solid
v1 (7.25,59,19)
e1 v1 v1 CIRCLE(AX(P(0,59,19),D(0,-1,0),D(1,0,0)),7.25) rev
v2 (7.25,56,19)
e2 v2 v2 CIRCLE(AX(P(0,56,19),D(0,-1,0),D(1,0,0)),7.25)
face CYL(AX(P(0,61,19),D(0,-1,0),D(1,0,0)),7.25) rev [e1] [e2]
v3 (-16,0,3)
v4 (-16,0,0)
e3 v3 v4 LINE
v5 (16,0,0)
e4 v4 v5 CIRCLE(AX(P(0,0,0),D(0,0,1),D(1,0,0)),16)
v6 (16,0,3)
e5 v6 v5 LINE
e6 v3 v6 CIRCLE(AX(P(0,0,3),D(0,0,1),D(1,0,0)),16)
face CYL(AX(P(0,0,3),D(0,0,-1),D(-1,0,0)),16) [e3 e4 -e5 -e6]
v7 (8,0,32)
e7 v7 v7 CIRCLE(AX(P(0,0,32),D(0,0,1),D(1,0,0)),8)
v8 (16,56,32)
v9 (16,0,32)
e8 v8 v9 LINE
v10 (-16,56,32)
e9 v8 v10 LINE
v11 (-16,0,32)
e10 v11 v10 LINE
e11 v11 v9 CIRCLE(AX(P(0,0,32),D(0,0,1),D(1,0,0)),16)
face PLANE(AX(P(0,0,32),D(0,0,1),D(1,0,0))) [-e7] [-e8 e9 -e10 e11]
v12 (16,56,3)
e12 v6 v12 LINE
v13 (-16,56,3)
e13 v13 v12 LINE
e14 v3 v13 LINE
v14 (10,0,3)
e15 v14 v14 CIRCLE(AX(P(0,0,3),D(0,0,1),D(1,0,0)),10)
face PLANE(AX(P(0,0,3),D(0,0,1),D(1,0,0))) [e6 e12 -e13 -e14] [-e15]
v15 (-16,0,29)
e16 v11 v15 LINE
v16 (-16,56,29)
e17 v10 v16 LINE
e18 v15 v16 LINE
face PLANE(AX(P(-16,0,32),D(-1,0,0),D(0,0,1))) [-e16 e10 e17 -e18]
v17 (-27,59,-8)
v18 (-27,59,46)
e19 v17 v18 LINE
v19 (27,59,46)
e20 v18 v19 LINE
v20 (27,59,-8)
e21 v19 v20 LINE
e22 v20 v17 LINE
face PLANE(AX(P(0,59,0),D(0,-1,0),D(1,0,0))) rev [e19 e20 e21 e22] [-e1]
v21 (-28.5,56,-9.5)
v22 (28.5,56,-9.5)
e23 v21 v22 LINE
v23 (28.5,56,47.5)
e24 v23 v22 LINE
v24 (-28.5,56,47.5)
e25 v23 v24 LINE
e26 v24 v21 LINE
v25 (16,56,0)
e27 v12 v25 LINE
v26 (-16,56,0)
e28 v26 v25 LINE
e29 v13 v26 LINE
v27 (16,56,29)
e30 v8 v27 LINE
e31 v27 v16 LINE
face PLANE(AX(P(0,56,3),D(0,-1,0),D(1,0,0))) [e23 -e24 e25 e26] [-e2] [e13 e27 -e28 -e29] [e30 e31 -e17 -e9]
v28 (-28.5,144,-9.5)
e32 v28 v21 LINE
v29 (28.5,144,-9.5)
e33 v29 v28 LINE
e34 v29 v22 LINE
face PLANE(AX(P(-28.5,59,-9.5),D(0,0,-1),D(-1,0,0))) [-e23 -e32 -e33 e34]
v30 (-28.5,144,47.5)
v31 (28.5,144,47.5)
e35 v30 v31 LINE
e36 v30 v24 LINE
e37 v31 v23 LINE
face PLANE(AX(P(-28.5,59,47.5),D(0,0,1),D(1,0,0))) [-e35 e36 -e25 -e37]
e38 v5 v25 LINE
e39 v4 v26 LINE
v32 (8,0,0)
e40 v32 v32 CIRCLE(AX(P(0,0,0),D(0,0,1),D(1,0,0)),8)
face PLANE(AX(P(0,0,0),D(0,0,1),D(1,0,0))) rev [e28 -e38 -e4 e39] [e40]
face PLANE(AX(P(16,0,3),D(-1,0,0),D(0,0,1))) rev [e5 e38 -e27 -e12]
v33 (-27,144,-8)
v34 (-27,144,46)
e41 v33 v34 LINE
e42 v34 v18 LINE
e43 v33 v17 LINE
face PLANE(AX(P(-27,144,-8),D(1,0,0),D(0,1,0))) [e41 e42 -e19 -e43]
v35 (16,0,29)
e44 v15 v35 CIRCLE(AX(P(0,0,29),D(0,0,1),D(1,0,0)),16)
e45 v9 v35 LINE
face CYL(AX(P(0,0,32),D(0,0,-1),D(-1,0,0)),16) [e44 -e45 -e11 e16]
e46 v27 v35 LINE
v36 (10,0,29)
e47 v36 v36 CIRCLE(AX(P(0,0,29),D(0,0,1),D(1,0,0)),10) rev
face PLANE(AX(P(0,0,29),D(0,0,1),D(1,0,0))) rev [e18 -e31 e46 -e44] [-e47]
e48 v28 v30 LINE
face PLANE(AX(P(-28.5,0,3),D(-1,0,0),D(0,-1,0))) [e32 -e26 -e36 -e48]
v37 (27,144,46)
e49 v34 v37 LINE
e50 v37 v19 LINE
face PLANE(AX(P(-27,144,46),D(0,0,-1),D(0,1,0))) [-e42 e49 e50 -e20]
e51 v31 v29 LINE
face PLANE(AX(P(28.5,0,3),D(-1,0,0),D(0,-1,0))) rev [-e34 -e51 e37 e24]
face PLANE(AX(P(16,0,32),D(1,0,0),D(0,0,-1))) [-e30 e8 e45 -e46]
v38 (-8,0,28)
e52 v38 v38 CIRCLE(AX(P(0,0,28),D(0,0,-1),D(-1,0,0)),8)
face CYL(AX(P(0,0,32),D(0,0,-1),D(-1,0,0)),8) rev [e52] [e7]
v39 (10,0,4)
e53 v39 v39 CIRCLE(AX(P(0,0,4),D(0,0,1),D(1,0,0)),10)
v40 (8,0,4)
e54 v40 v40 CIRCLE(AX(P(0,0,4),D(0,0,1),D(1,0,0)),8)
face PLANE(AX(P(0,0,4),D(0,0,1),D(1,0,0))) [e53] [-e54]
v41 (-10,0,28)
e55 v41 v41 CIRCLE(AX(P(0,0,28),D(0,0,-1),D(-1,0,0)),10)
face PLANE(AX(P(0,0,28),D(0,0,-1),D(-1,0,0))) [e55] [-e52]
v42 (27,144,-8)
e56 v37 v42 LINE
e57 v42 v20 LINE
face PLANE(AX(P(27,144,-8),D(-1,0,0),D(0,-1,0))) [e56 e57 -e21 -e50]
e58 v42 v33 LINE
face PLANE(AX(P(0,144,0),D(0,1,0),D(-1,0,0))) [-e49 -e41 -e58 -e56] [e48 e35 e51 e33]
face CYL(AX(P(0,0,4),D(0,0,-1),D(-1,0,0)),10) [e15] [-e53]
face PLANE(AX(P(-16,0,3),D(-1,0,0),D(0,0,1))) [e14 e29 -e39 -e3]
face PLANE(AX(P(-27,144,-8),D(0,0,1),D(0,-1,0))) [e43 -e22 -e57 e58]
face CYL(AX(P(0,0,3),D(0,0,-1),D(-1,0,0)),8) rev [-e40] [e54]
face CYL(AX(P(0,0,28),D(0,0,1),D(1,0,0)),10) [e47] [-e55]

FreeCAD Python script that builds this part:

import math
import FreeCAD as App
import Part
import Sketcher

V = App.Vector
Q = App.Units.Quantity


def add_polygon(sketch, points):
    """Adds a closed chain of lines whose ends are joined by coincident constraints."""
    first, n = sketch.GeometryCount, len(points)
    for a, b in zip(points, points[1:] + points[:1]):
        sketch.addGeometry(Part.LineSegment(App.Vector(*a, 0), App.Vector(*b, 0)), False)
    for i in range(n):
        sketch.addConstraint(Sketcher.Constraint("Coincident", first + i, 2, first + (i + 1) % n, 1))

doc = App.newDocument("Part")
body = doc.addObject("PartDesign::Body", "Body")

# Sketch on XY plane
sketch1 = body.newObject("Sketcher::SketchObject", "Sketch")
sketch1.AttachmentSupport = (doc.getObject("XY_Plane"), [""])
sketch1.MapMode = "FlatFace"
sketch1.addGeometry(Part.LineSegment(V(-16, 56, 0), V(-16, 0, 0)), False)
sketch1.addGeometry(Part.ArcOfCircle(Part.Circle(V(0, 0, 0), V(0, 0, 1), 16), math.radians(180), math.radians(360)), False)
sketch1.addGeometry(Part.LineSegment(V(16, 0, 0), V(16, 56, 0)), False)
sketch1.addGeometry(Part.LineSegment(V(16, 56, 0), V(28.5, 56, 0)), False)
sketch1.addGeometry(Part.LineSegment(V(28.5, 56, 0), V(28.5, 96, 0)), False)
sketch1.addGeometry(Part.LineSegment(V(28.5, 96, 0), V(-28.5, 96, 0)), False)
sketch1.addGeometry(Part.LineSegment(V(-28.5, 96, 0), V(-28.5, 56, 0)), False)
sketch1.addGeometry(Part.LineSegment(V(-28.5, 56, 0), V(-16, 56, 0)), False)
sketch1.addGeometry(Part.Circle(V(0, 0, 0), V(0, 0, 1), 8), False)
sketch1.addConstraint(Sketcher.Constraint("Tangent", 0, 2, 1, 1))
sketch1.addConstraint(Sketcher.Constraint("Tangent", 1, 2, 2, 1))
sketch1.addConstraint(Sketcher.Constraint("Coincident", 2, 2, 3, 1))
sketch1.addConstraint(Sketcher.Constraint("Coincident", 3, 2, 4, 1))
sketch1.addConstraint(Sketcher.Constraint("Coincident", 4, 2, 5, 1))
sketch1.addConstraint(Sketcher.Constraint("Coincident", 5, 2, 6, 1))
sketch1.addConstraint(Sketcher.Constraint("Coincident", 6, 2, 7, 1))
sketch1.addConstraint(Sketcher.Constraint("Coincident", 7, 2, 0, 1))
sketch1.addConstraint(Sketcher.Constraint("Vertical", 0))
sketch1.addConstraint(Sketcher.Constraint("Vertical", 2))
sketch1.addConstraint(Sketcher.Constraint("Horizontal", 3))
sketch1.addConstraint(Sketcher.Constraint("Vertical", 4))
sketch1.addConstraint(Sketcher.Constraint("Horizontal", 5))
sketch1.addConstraint(Sketcher.Constraint("Vertical", 6))
sketch1.addConstraint(Sketcher.Constraint("Horizontal", 7))
sketch1.addConstraint(Sketcher.Constraint("Coincident", 1, 3, -1, 1))
sketch1.addConstraint(Sketcher.Constraint("Coincident", 8, 3, -1, 1))
sketch1.addConstraint(Sketcher.Constraint("Symmetric", 3, 2, 6, 2, -2))
sketch1.addConstraint(Sketcher.Constraint("Diameter", 8, Q("16 mm")))
sketch1.addConstraint(Sketcher.Constraint("Radius", 1, Q("16 mm")))
sketch1.addConstraint(Sketcher.Constraint("DistanceX", 5, 2, 5, 1, Q("57 mm")))
sketch1.addConstraint(Sketcher.Constraint("DistanceY", 0, 2, 0, 1, Q("56 mm")))
sketch1.addConstraint(Sketcher.Constraint("DistanceY", 4, 1, 4, 2, Q("40 mm")))
pad1 = body.newObject("PartDesign::Pad", "Pad")
pad1.Profile = sketch1
pad1.Length = 3

# Sketch on XY plane
sketch2 = body.newObject("Sketcher::SketchObject", "Sketch001")
sketch2.AttachmentSupport = (doc.getObject("XY_Plane"), [""])
sketch2.MapMode = "FlatFace"
sketch2.AttachmentOffset = App.Placement(V(0, 0, 3), App.Rotation())
sketch2.addGeometry(Part.Circle(V(0, 0, 0), V(0, 0, 1), 10), False)
sketch2.addGeometry(Part.Circle(V(0, 0, 0), V(0, 0, 1), 8), False)
sketch2.addConstraint(Sketcher.Constraint("Coincident", 0, 3, -1, 1))
sketch2.addConstraint(Sketcher.Constraint("Coincident", 1, 3, -1, 1))
sketch2.addConstraint(Sketcher.Constraint("Diameter", 0, Q("20 mm")))
sketch2.addConstraint(Sketcher.Constraint("Diameter", 1, Q("16 mm")))
pad2 = body.newObject("PartDesign::Pad", "Pad001")
pad2.Profile = sketch2
pad2.Length = 1
body2 = doc.addObject("PartDesign::Body", "Body001")

# Sketch on XY plane
sketch3 = body2.newObject("Sketcher::SketchObject", "Sketch002")
sketch3.AttachmentSupport = (doc.getObject("XY_Plane001"), [""])
sketch3.MapMode = "FlatFace"
sketch3.AttachmentOffset = App.Placement(V(0, 0, 29), App.Rotation())
sketch3.addGeometry(Part.LineSegment(V(-16, 56, 0), V(-16, 0, 0)), False)
sketch3.addGeometry(Part.ArcOfCircle(Part.Circle(V(0, 0, 0), V(0, 0, 1), 16), math.radians(180), math.radians(360)), False)
sketch3.addGeometry(Part.LineSegment(V(16, 0, 0), V(16, 56, 0)), False)
sketch3.addGeometry(Part.LineSegment(V(16, 56, 0), V(28.5, 56, 0)), False)
sketch3.addGeometry(Part.LineSegment(V(28.5, 56, 0), V(28.5, 96, 0)), False)
sketch3.addGeometry(Part.LineSegment(V(28.5, 96, 0), V(-28.5, 96, 0)), False)
sketch3.addGeometry(Part.LineSegment(V(-28.5, 96, 0), V(-28.5, 56, 0)), False)
sketch3.addGeometry(Part.LineSegment(V(-28.5, 56, 0), V(-16, 56, 0)), False)
sketch3.addGeometry(Part.Circle(V(0, 0, 0), V(0, 0, 1), 8), False)
sketch3.addConstraint(Sketcher.Constraint("Tangent", 0, 2, 1, 1))
sketch3.addConstraint(Sketcher.Constraint("Tangent", 1, 2, 2, 1))
sketch3.addConstraint(Sketcher.Constraint("Coincident", 2, 2, 3, 1))
sketch3.addConstraint(Sketcher.Constraint("Coincident", 3, 2, 4, 1))
sketch3.addConstraint(Sketcher.Constraint("Coincident", 4, 2, 5, 1))
sketch3.addConstraint(Sketcher.Constraint("Coincident", 5, 2, 6, 1))
sketch3.addConstraint(Sketcher.Constraint("Coincident", 6, 2, 7, 1))
sketch3.addConstraint(Sketcher.Constraint("Coincident", 7, 2, 0, 1))
sketch3.addConstraint(Sketcher.Constraint("Vertical", 0))
sketch3.addConstraint(Sketcher.Constraint("Vertical", 2))
sketch3.addConstraint(Sketcher.Constraint("Horizontal", 3))
sketch3.addConstraint(Sketcher.Constraint("Vertical", 4))
sketch3.addConstraint(Sketcher.Constraint("Horizontal", 5))
sketch3.addConstraint(Sketcher.Constraint("Vertical", 6))
sketch3.addConstraint(Sketcher.Constraint("Horizontal", 7))
sketch3.addConstraint(Sketcher.Constraint("Coincident", 1, 3, -1, 1))
sketch3.addConstraint(Sketcher.Constraint("Coincident", 8, 3, -1, 1))
sketch3.addConstraint(Sketcher.Constraint("Symmetric", 3, 2, 6, 2, -2))
sketch3.addConstraint(Sketcher.Constraint("Diameter", 8, Q("16 mm")))
sketch3.addConstraint(Sketcher.Constraint("Radius", 1, Q("16 mm")))
sketch3.addConstraint(Sketcher.Constraint("DistanceX", 5, 2, 5, 1, Q("57 mm")))
sketch3.addConstraint(Sketcher.Constraint("DistanceY", 0, 2, 0, 1, Q("56 mm")))
sketch3.addConstraint(Sketcher.Constraint("DistanceY", 4, 1, 4, 2, Q("40 mm")))
pad3 = body2.newObject("PartDesign::Pad", "Pad002")
pad3.Profile = sketch3
pad3.Length = 3

# Sketch on XY plane
sketch4 = body2.newObject("Sketcher::SketchObject", "Sketch003")
sketch4.AttachmentSupport = (doc.getObject("XY_Plane001"), [""])
sketch4.MapMode = "FlatFace"
sketch4.AttachmentOffset = App.Placement(V(0, 0, 28), App.Rotation())
sketch4.addGeometry(Part.Circle(V(0, 0, 0), V(0, 0, 1), 10), False)
sketch4.addGeometry(Part.Circle(V(0, 0, 0), V(0, 0, 1), 8), False)
sketch4.addConstraint(Sketcher.Constraint("Coincident", 0, 3, -1, 1))
sketch4.addConstraint(Sketcher.Constraint("Coincident", 1, 3, -1, 1))
sketch4.addConstraint(Sketcher.Constraint("Diameter", 0, Q("20 mm")))
sketch4.addConstraint(Sketcher.Constraint("Diameter", 1, Q("16 mm")))
pad4 = body2.newObject("PartDesign::Pad", "Pad003")
pad4.Profile = sketch4
pad4.Length = 1
body.AllowCompound = True
doc.recompute()

boolean = body.newObject("PartDesign::Boolean", "Boolean")
boolean.Type = "Fuse"
boolean.addObjects([body2])

# Sketch on XZ plane
sketch5 = body.newObject("Sketcher::SketchObject", "Sketch004")
sketch5.AttachmentSupport = (doc.getObject("XZ_Plane"), [""])
sketch5.MapMode = "FlatFace"
sketch5.AttachmentOffset = App.Placement(V(0, 0, -56), App.Rotation())
add_polygon(sketch5, [(-28.5, 47.5), (-28.5, -9.5), (28.5, -9.5), (28.5, 47.5)])  # lines 0-3
sketch5.addConstraint(Sketcher.Constraint("Vertical", 0))
sketch5.addConstraint(Sketcher.Constraint("Horizontal", 1))
sketch5.addConstraint(Sketcher.Constraint("Vertical", 2))
sketch5.addConstraint(Sketcher.Constraint("Horizontal", 3))
sketch5.addConstraint(Sketcher.Constraint("Equal", 3, 0))
sketch5.addConstraint(Sketcher.Constraint("DistanceX", 1, 1, 1, 2, Q("57 mm")))
sketch5.addConstraint(Sketcher.Constraint("DistanceX", 0, 2, -1, 1, Q("28.5 mm")))
sketch5.addConstraint(Sketcher.Constraint("DistanceY", 0, 2, -1, 1, Q("9.5 mm")))
pad5 = body.newObject("PartDesign::Pad", "Pad004")
pad5.Profile = sketch5
pad5.Length = 3
pad5.Reversed = True

# Sketch on XZ plane
sketch6 = body.newObject("Sketcher::SketchObject", "Sketch005")
sketch6.AttachmentSupport = (doc.getObject("XZ_Plane"), [""])
sketch6.MapMode = "FlatFace"
sketch6.AttachmentOffset = App.Placement(V(0, 0, -56), App.Rotation())
sketch6.addGeometry(Part.ArcOfCircle(Part.Circle(V(0, 19, 0), V(0, 0, 1), 7.25), math.radians(-135), math.radians(-45)), False)
sketch6.addGeometry(Part.ArcOfCircle(Part.Circle(V(0, 19, 0), V(0, 0, 1), 7.25), math.radians(-45), math.radians(0)), False)
sketch6.addGeometry(Part.ArcOfCircle(Part.Circle(V(0, 19, 0), V(0, 0, 1), 7.25), math.radians(0), math.radians(45)), False)
sketch6.addGeometry(Part.ArcOfCircle(Part.Circle(V(0, 19, 0), V(0, 0, 1), 7.25), math.radians(45), math.radians(135)), False)
sketch6.addGeometry(Part.ArcOfCircle(Part.Circle(V(0, 19, 0), V(0, 0, 1), 7.25), math.radians(135), math.radians(225)), False)
sketch6.addConstraint(Sketcher.Constraint("Tangent", 0, 2, 1, 1))
sketch6.addConstraint(Sketcher.Constraint("Tangent", 1, 2, 2, 1))
sketch6.addConstraint(Sketcher.Constraint("Tangent", 2, 2, 3, 1))
sketch6.addConstraint(Sketcher.Constraint("Tangent", 3, 2, 4, 1))
sketch6.addConstraint(Sketcher.Constraint("Tangent", 4, 2, 0, 1))
sketch6.addConstraint(Sketcher.Constraint("Coincident", 2, 3, 0, 3))
sketch6.addConstraint(Sketcher.Constraint("Symmetric", 2, 2, 3, 2, -2))
sketch6.addConstraint(Sketcher.Constraint("Horizontal", 4, 3, 1, 2))
sketch6.addConstraint(Sketcher.Constraint("Horizontal", 0, 2, 4, 2))
sketch6.addConstraint(Sketcher.Constraint("Vertical", 0, 2, 2, 2))
sketch6.addConstraint(Sketcher.Constraint("Radius", 0, Q("7.25 mm")))
sketch6.addConstraint(Sketcher.Constraint("DistanceY", -1, 1, 0, 3, Q("19 mm")))
sketch6.addConstraint(Sketcher.Constraint("DistanceX", -1, 1, 0, 2, Q("5.126524 mm")))
pocket1 = body.newObject("PartDesign::Pocket", "Pocket")
pocket1.Profile = sketch6
pocket1.Length = 5

# Sketch on XZ plane
sketch7 = body.newObject("Sketcher::SketchObject", "Sketch006")
sketch7.AttachmentSupport = (doc.getObject("XZ_Plane"), [""])
sketch7.MapMode = "FlatFace"
sketch7.AttachmentOffset = App.Placement(V(0, 0, -59), App.Rotation())
sketch7.addGeometry(Part.Circle(V(0, 19, 0), V(0, 0, 1), 8.25), False)
sketch7.addGeometry(Part.Circle(V(0, 19, 0), V(0, 0, 1), 7.25), False)
sketch7.addConstraint(Sketcher.Constraint("Coincident", 1, 3, 0, 3))
sketch7.addConstraint(Sketcher.Constraint("PointOnObject", 0, 3, -2))
sketch7.addConstraint(Sketcher.Constraint("Diameter", 0, Q("16.5 mm")))
sketch7.addConstraint(Sketcher.Constraint("Diameter", 1, Q("14.5 mm")))
sketch7.addConstraint(Sketcher.Constraint("DistanceY", -1, 1, 0, 3, Q("19 mm")))
pad6 = body.newObject("PartDesign::Pad", "Pad005")
pad6.Profile = sketch7
pad6.Length = 2
pad6.Reversed = True

# Sketch on YZ plane
sketch8 = body.newObject("Sketcher::SketchObject", "Sketch007")
sketch8.AttachmentSupport = (doc.getObject("YZ_Plane"), [""])
sketch8.MapMode = "FlatFace"
sketch8.AttachmentOffset = App.Placement(V(0, 0, -28.5), App.Rotation())
add_polygon(sketch8, [(96, 0), (59, 0), (59, 32), (96, 32)])  # lines 0-3
sketch8.addConstraint(Sketcher.Constraint("Horizontal", 0))
sketch8.addConstraint(Sketcher.Constraint("Vertical", 1))
sketch8.addConstraint(Sketcher.Constraint("Horizontal", 2))
sketch8.addConstraint(Sketcher.Constraint("Vertical", 3))
sketch8.addConstraint(Sketcher.Constraint("PointOnObject", 0, 2, -1))
sketch8.addConstraint(Sketcher.Constraint("DistanceX", 0, 2, 0, 1, Q("37 mm")))
sketch8.addConstraint(Sketcher.Constraint("DistanceY", 1, 1, 1, 2, Q("32 mm")))
sketch8.addConstraint(Sketcher.Constraint("DistanceX", -1, 1, 0, 2, Q("59 mm")))
pocket2 = body.newObject("PartDesign::Pocket", "Pocket001")
pocket2.Profile = sketch8
pocket2.Length = 57
pocket2.Reversed = True

# Sketch on XZ plane
sketch9 = body.newObject("Sketcher::SketchObject", "Sketch008")
sketch9.AttachmentSupport = (doc.getObject("XZ_Plane"), [""])
sketch9.MapMode = "FlatFace"
sketch9.AttachmentOffset = App.Placement(V(0, 0, -59), App.Rotation())
add_polygon(sketch9, [(-28.5, -9.5), (-28.5, 47.5), (28.5, 47.5), (28.5, -9.5)])  # lines 0-3
add_polygon(sketch9, [(27, 46), (-27, 46), (-27, -8), (27, -8)])  # lines 4-7
sketch9.addConstraint(Sketcher.Constraint("Vertical", 0))
sketch9.addConstraint(Sketcher.Constraint("Horizontal", 1))
sketch9.addConstraint(Sketcher.Constraint("Vertical", 2))
sketch9.addConstraint(Sketcher.Constraint("Horizontal", 3))
sketch9.addConstraint(Sketcher.Constraint("Horizontal", 4))
sketch9.addConstraint(Sketcher.Constraint("Vertical", 5))
sketch9.addConstraint(Sketcher.Constraint("Horizontal", 6))
sketch9.addConstraint(Sketcher.Constraint("Vertical", 7))
sketch9.addConstraint(Sketcher.Constraint("Equal", 3, 0))
sketch9.addConstraint(Sketcher.Constraint("Equal", 6, 5))
sketch9.addConstraint(Sketcher.Constraint("DistanceX", 1, 1, 1, 2, Q("57 mm")))
sketch9.addConstraint(Sketcher.Constraint("DistanceX", 4, 2, 4, 1, Q("54 mm")))
sketch9.addConstraint(Sketcher.Constraint("DistanceX", 4, 2, -1, 1, Q("27 mm")))
sketch9.addConstraint(Sketcher.Constraint("DistanceY", -1, 1, 4, 2, Q("46 mm")))
sketch9.addConstraint(Sketcher.Constraint("DistanceX", 0, 2, -1, 1, Q("28.5 mm")))
sketch9.addConstraint(Sketcher.Constraint("DistanceY", -1, 1, 0, 2, Q("47.5 mm")))
pad7 = body.newObject("PartDesign::Pad", "Pad006")
pad7.Profile = sketch9
pad7.Length = 85
pad7.Reversed = True

doc.recompute()
